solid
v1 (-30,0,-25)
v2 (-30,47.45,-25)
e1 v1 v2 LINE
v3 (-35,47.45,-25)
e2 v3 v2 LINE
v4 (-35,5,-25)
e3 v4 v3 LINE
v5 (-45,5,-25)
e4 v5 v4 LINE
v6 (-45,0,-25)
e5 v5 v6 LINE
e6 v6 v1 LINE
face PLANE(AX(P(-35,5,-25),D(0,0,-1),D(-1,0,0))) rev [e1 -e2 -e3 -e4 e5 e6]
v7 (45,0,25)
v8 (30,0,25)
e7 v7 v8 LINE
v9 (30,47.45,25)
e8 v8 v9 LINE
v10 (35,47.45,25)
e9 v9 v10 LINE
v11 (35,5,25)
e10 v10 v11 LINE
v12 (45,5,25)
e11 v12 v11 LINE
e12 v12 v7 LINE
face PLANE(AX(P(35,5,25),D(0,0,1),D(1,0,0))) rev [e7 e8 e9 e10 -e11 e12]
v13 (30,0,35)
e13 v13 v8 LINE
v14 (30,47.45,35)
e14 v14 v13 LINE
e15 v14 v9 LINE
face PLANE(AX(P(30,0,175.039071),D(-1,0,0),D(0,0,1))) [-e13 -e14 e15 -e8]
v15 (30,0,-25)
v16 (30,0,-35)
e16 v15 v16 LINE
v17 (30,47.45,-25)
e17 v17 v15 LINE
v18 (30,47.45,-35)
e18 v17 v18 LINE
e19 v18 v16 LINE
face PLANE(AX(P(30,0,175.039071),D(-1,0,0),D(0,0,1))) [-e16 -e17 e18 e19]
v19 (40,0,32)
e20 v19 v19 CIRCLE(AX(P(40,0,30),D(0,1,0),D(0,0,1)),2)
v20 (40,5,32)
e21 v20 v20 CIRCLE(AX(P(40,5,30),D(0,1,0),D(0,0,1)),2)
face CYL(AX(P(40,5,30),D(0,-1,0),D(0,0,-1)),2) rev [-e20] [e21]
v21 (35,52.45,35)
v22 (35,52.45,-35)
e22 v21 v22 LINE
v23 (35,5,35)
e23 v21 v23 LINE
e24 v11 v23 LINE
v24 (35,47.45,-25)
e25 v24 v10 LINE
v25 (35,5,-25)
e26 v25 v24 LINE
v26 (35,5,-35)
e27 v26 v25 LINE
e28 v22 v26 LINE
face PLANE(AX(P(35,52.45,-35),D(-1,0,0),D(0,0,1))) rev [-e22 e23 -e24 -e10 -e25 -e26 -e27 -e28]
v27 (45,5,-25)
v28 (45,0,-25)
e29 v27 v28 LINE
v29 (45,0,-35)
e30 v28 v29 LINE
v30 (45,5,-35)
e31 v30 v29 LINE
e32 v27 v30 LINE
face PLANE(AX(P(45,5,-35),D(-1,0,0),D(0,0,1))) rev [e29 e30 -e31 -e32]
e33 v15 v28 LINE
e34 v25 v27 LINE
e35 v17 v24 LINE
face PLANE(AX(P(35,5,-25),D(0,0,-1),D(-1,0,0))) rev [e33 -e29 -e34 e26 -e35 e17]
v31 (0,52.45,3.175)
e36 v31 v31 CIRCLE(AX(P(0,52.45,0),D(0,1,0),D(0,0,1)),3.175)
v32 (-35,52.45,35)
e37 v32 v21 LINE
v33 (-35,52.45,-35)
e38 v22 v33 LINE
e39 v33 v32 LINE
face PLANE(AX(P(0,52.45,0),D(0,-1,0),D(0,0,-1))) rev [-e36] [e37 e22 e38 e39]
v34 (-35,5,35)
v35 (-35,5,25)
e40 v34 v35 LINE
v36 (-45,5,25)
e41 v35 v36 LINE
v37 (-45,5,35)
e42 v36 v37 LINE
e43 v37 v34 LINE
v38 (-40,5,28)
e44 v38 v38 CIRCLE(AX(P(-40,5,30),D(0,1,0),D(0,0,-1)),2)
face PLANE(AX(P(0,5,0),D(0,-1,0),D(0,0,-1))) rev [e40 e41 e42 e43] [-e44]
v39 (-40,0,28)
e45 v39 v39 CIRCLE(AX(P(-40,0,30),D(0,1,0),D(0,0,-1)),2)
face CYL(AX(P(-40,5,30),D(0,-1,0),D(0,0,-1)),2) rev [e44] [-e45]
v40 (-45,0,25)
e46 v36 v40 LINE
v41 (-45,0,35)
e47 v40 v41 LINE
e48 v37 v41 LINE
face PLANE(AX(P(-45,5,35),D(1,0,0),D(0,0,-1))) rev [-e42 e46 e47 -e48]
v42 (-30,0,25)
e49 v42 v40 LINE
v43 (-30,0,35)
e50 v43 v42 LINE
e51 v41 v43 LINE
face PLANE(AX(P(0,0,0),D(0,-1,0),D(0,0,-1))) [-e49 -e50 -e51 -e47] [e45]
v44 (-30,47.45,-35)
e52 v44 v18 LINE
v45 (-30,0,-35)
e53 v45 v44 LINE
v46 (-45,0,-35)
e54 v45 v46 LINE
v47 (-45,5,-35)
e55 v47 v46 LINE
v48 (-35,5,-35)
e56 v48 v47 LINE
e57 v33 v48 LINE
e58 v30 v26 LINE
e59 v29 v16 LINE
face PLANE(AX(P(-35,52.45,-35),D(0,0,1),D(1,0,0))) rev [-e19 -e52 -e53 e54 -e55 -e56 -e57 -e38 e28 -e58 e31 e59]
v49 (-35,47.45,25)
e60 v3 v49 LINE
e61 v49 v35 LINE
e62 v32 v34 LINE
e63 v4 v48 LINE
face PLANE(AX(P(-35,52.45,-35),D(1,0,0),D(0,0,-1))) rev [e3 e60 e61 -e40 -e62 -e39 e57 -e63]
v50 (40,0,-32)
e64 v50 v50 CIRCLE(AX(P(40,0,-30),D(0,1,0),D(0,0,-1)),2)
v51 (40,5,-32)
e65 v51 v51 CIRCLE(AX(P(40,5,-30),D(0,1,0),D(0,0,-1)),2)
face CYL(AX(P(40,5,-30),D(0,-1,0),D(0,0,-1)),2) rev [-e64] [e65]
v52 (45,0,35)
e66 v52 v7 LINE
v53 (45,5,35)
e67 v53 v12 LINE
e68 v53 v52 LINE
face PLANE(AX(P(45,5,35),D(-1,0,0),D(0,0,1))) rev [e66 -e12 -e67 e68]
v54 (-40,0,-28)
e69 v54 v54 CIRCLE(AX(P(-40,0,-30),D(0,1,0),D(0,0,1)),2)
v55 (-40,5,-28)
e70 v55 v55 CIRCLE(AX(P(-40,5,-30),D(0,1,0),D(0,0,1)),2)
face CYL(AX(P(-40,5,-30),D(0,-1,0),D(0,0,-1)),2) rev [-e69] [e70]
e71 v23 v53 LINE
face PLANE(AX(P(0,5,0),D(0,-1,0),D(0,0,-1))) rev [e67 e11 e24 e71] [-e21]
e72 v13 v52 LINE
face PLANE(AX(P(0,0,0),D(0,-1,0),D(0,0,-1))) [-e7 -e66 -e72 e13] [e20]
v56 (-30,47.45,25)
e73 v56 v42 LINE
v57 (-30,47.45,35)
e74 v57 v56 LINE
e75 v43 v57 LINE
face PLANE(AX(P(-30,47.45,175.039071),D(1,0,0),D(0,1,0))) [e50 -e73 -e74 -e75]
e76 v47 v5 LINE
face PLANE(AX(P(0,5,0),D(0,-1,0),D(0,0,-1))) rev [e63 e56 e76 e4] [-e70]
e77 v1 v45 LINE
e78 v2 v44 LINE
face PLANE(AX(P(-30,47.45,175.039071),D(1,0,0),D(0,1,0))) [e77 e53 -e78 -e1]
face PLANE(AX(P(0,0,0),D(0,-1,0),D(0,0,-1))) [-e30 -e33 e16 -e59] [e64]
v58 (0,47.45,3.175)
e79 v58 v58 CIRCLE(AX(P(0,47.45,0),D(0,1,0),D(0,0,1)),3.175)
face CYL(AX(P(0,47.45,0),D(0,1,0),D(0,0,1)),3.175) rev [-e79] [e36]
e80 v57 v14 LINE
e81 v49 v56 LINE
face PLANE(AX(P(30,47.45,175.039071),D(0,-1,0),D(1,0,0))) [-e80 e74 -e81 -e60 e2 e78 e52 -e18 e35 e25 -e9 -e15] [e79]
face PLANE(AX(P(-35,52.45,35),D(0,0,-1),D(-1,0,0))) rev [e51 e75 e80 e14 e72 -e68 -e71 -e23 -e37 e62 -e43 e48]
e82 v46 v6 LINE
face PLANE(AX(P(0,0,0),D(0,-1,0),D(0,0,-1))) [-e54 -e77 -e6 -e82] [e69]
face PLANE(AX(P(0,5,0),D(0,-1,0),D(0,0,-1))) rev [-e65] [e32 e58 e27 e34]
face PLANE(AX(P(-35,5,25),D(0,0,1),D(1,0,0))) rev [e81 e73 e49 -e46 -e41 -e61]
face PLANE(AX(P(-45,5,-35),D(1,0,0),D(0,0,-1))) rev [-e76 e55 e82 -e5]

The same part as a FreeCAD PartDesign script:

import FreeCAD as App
import Part
import Sketcher

V = App.Vector
Q = App.Units.Quantity

doc = App.newDocument("Part")
body = doc.addObject("PartDesign::Body", "Body")

# Sketch on XZ plane
sketch1 = body.newObject("Sketcher::SketchObject", "Sketch")
sketch1.AttachmentSupport = (doc.getObject("XZ_Plane"), [""])
sketch1.MapMode = "FlatFace"
sketch1.addGeometry([
    Part.LineSegment(V(-35, -35, 0), V(-35, 35, 0)),
    Part.LineSegment(V(-35, 35, 0), V(35, 35, 0)),
    Part.LineSegment(V(35, 35, 0), V(35, -35, 0)),
    Part.LineSegment(V(35, -35, 0), V(-35, -35, 0)),
], False)
sketch1.addConstraint([
    Sketcher.Constraint("Coincident", 0, 2, 1, 1),
    Sketcher.Constraint("Coincident", 1, 2, 2, 1),
    Sketcher.Constraint("Coincident", 2, 2, 3, 1),
    Sketcher.Constraint("Coincident", 3, 2, 0, 1),
    Sketcher.Constraint("Vertical", 0),
    Sketcher.Constraint("Horizontal", 1),
    Sketcher.Constraint("Vertical", 2),
    Sketcher.Constraint("Horizontal", 3),
    Sketcher.Constraint("Symmetric", 0, 2, 2, 2, -1, 1),
    Sketcher.Constraint("Equal", 3, 0),
    Sketcher.Constraint("DistanceX", 1, 1, 1, 2, Q("70 mm")),
])
pad1 = body.newObject("PartDesign::Pad", "Pad")
pad1.Profile = sketch1
pad1.Length = 52.45
pad1.Reversed = True

# Sketch on XY plane
sketch2 = body.newObject("Sketcher::SketchObject", "Sketch001")
sketch2.AttachmentSupport = (doc.getObject("XY_Plane"), [""])
sketch2.MapMode = "FlatFace"
sketch2.AttachmentOffset = App.Placement(V(0, 0, 35), App.Rotation())
sketch2.addGeometry([
    Part.LineSegment(V(-30, 47, 0), V(-30, 0, 0)),
    Part.LineSegment(V(-30, 0, 0), V(30, 0, 0)),
    Part.LineSegment(V(30, 0, 0), V(30, 47, 0)),
    Part.LineSegment(V(30, 47, 0), V(-30, 47, 0)),
], False)
sketch2.addConstraint([
    Sketcher.Constraint("Coincident", 0, 2, 1, 1),
    Sketcher.Constraint("Coincident", 1, 2, 2, 1),
    Sketcher.Constraint("Coincident", 2, 2, 3, 1),
    Sketcher.Constraint("Coincident", 3, 2, 0, 1),
    Sketcher.Constraint("Vertical", 0),
    Sketcher.Constraint("Horizontal", 1),
    Sketcher.Constraint("Vertical", 2),
    Sketcher.Constraint("Horizontal", 3),
    Sketcher.Constraint("Symmetric", 0, 2, 1, 2, -1, 1),
    Sketcher.Constraint("DistanceX", 1, 1, 1, 2, Q("60 mm")),
    Sketcher.Constraint("DistanceY", 0, 2, 0, 1, Q("47.45 mm")),
])
pocket1 = body.newObject("PartDesign::Pocket", "Pocket")
pocket1.Profile = sketch2
pocket1.Type = "ThroughAll"
pocket1.Midplane = True

# Sketch on XZ plane
sketch3 = body.newObject("Sketcher::SketchObject", "Sketch002")
sketch3.AttachmentSupport = (doc.getObject("XZ_Plane"), [""])
sketch3.MapMode = "FlatFace"
sketch3.addGeometry([
    Part.LineSegment(V(35, 25, 0), V(35, 35, 0)),  # 0
    Part.LineSegment(V(35, 35, 0), V(45, 35, 0)),  # 1
    Part.LineSegment(V(45, 35, 0), V(45, 25, 0)),  # 2
    Part.LineSegment(V(45, 25, 0), V(35, 25, 0)),  # 3
    Part.Circle(V(40, 30, 0), V(0, 0, 1), 2),  # 4
    Part.LineSegment(V(35, -35, 0), V(35, -25, 0)),  # 5
    Part.LineSegment(V(35, -25, 0), V(45, -25, 0)),  # 6
    Part.LineSegment(V(45, -25, 0), V(45, -35, 0)),  # 7
    Part.LineSegment(V(45, -35, 0), V(35, -35, 0)),  # 8
    Part.Circle(V(40, -30, 0), V(0, 0, 1), 2),  # 9
    Part.LineSegment(V(-45, 25, 0), V(-45, 35, 0)),  # 10
    Part.LineSegment(V(-45, 35, 0), V(-35, 35, 0)),  # 11
    Part.LineSegment(V(-35, 35, 0), V(-35, 25, 0)),  # 12
    Part.LineSegment(V(-35, 25, 0), V(-45, 25, 0)),  # 13
    Part.Circle(V(-40, 30, 0), V(0, 0, 1), 2),  # 14
    Part.LineSegment(V(-45, -35, 0), V(-45, -25, 0)),  # 15
    Part.LineSegment(V(-45, -25, 0), V(-35, -25, 0)),  # 16
    Part.LineSegment(V(-35, -25, 0), V(-35, -35, 0)),  # 17
    Part.LineSegment(V(-35, -35, 0), V(-45, -35, 0)),  # 18
    Part.Circle(V(-40, -30, 0), V(0, 0, 1), 2),  # 19
], False)
sketch3.addConstraint([
    Sketcher.Constraint("Coincident", 0, 2, 1, 1),
    Sketcher.Constraint("Coincident", 1, 2, 2, 1),
    Sketcher.Constraint("Coincident", 2, 2, 3, 1),
    Sketcher.Constraint("Coincident", 3, 2, 0, 1),
    Sketcher.Constraint("Coincident", 5, 2, 6, 1),
    Sketcher.Constraint("Coincident", 6, 2, 7, 1),
    Sketcher.Constraint("Coincident", 7, 2, 8, 1),
    Sketcher.Constraint("Coincident", 8, 2, 5, 1),
    Sketcher.Constraint("Coincident", 10, 2, 11, 1),
    Sketcher.Constraint("Coincident", 11, 2, 12, 1),
    Sketcher.Constraint("Coincident", 12, 2, 13, 1),
    Sketcher.Constraint("Coincident", 13, 2, 10, 1),
    Sketcher.Constraint("Coincident", 15, 2, 16, 1),
    Sketcher.Constraint("Coincident", 16, 2, 17, 1),
    Sketcher.Constraint("Coincident", 17, 2, 18, 1),
    Sketcher.Constraint("Coincident", 18, 2, 15, 1),
    Sketcher.Constraint("Vertical", 0),
    Sketcher.Constraint("Horizontal", 1),
    Sketcher.Constraint("Vertical", 2),
    Sketcher.Constraint("Horizontal", 3),
    Sketcher.Constraint("Vertical", 5),
    Sketcher.Constraint("Horizontal", 6),
    Sketcher.Constraint("Vertical", 7),
    Sketcher.Constraint("Horizontal", 8),
    Sketcher.Constraint("Vertical", 10),
    Sketcher.Constraint("Horizontal", 11),
    Sketcher.Constraint("Vertical", 12),
    Sketcher.Constraint("Horizontal", 13),
    Sketcher.Constraint("Vertical", 15),
    Sketcher.Constraint("Horizontal", 16),
    Sketcher.Constraint("Vertical", 17),
    Sketcher.Constraint("Horizontal", 18),
    Sketcher.Constraint("Equal", 4, 9),
    Sketcher.Constraint("Equal", 9, 14),
    Sketcher.Constraint("Equal", 14, 19),
    Sketcher.Constraint("Symmetric", 9, 3, 14, 3, -1, 1),
    Sketcher.Constraint("Symmetric", 4, 3, 19, 3, -1, 1),
    Sketcher.Constraint("Symmetric", 7, 2, 10, 2, -1, 1),
    Sketcher.Constraint("Symmetric", 5, 2, 12, 2, -1, 1),
    Sketcher.Constraint("Symmetric", 2, 2, 15, 2, -1, 1),
    Sketcher.Constraint("Symmetric", 0, 2, 17, 2, -1, 1),
    Sketcher.Constraint("Symmetric", 4, 3, 14, 3, -2),
    Sketcher.Constraint("Symmetric", 1, 2, 10, 2, -2),
    Sketcher.Constraint("Symmetric", 3, 2, 12, 2, -2),
    Sketcher.Constraint("Equal", 18, 0),
    Sketcher.Constraint("Diameter", 4, Q("4 mm")),
    Sketcher.Constraint("DistanceX", 1, 1, 1, 2, Q("10 mm")),
    Sketcher.Constraint("DistanceX", -1, 1, 4, 3, Q("40 mm")),
    Sketcher.Constraint("DistanceY", -1, 1, 4, 3, Q("30 mm")),
    Sketcher.Constraint("DistanceX", -1, 1, 0, 2, Q("35 mm")),
    Sketcher.Constraint("DistanceY", -1, 1, 0, 2, Q("35 mm")),
])
pad2 = body.newObject("PartDesign::Pad", "Pad001")
pad2.Profile = sketch3
pad2.Length = 5
pad2.Reversed = True

# Sketch on XZ plane
sketch4 = body.newObject("Sketcher::SketchObject", "Sketch003")
sketch4.AttachmentSupport = (doc.getObject("XZ_Plane"), [""])
sketch4.MapMode = "FlatFace"
sketch4.AttachmentOffset = App.Placement(V(0, 0, -52.45), App.Rotation())
sketch4.addGeometry(Part.Circle(V(0, 0, 0), V(0, 0, 1), 3.2), False)
sketch4.addConstraint([
    Sketcher.Constraint("Coincident", 0, 3, -1, 1),
    Sketcher.Constraint("Diameter", 0, Q("6.35 mm")),
])
pocket2 = body.newObject("PartDesign::Pocket", "Pocket001")
pocket2.Profile = sketch4
pocket2.Length = 5
pocket2.Reversed = True

# Sketch on YZ plane
sketch5 = body.newObject("Sketcher::SketchObject", "Sketch004")
sketch5.AttachmentSupport = (doc.getObject("YZ_Plane"), [""])
sketch5.MapMode = "FlatFace"
sketch5.AttachmentOffset = App.Placement(V(0, 0, 35), App.Rotation())
sketch5.addGeometry([
    Part.LineSegment(V(47, 25, 0), V(0, 25, 0)),
    Part.LineSegment(V(0, 25, 0), V(0, -25, 0)),
    Part.LineSegment(V(0, -25, 0), V(47, -25, 0)),
    Part.LineSegment(V(47, -25, 0), V(47, 25, 0)),
], False)
sketch5.addConstraint([
    Sketcher.Constraint("Coincident", 0, 2, 1, 1),
    Sketcher.Constraint("Coincident", 1, 2, 2, 1),
    Sketcher.Constraint("Coincident", 2, 2, 3, 1),
    Sketcher.Constraint("Coincident", 3, 2, 0, 1),
    Sketcher.Constraint("Horizontal", 0),
    Sketcher.Constraint("Vertical", 1),
    Sketcher.Constraint("Horizontal", 2),
    Sketcher.Constraint("Vertical", 3),
    Sketcher.Constraint("Symmetric", 0, 2, 1, 2, -1, 1),
    Sketcher.Constraint("DistanceY", 1, 2, 1, 1, Q("50 mm")),
    Sketcher.Constraint("DistanceX", 0, 2, 0, 1, Q("47.45 mm")),
])
pocket3 = body.newObject("PartDesign::Pocket", "Pocket002")
pocket3.Profile = sketch5
pocket3.Length = 80

doc.recompute()
